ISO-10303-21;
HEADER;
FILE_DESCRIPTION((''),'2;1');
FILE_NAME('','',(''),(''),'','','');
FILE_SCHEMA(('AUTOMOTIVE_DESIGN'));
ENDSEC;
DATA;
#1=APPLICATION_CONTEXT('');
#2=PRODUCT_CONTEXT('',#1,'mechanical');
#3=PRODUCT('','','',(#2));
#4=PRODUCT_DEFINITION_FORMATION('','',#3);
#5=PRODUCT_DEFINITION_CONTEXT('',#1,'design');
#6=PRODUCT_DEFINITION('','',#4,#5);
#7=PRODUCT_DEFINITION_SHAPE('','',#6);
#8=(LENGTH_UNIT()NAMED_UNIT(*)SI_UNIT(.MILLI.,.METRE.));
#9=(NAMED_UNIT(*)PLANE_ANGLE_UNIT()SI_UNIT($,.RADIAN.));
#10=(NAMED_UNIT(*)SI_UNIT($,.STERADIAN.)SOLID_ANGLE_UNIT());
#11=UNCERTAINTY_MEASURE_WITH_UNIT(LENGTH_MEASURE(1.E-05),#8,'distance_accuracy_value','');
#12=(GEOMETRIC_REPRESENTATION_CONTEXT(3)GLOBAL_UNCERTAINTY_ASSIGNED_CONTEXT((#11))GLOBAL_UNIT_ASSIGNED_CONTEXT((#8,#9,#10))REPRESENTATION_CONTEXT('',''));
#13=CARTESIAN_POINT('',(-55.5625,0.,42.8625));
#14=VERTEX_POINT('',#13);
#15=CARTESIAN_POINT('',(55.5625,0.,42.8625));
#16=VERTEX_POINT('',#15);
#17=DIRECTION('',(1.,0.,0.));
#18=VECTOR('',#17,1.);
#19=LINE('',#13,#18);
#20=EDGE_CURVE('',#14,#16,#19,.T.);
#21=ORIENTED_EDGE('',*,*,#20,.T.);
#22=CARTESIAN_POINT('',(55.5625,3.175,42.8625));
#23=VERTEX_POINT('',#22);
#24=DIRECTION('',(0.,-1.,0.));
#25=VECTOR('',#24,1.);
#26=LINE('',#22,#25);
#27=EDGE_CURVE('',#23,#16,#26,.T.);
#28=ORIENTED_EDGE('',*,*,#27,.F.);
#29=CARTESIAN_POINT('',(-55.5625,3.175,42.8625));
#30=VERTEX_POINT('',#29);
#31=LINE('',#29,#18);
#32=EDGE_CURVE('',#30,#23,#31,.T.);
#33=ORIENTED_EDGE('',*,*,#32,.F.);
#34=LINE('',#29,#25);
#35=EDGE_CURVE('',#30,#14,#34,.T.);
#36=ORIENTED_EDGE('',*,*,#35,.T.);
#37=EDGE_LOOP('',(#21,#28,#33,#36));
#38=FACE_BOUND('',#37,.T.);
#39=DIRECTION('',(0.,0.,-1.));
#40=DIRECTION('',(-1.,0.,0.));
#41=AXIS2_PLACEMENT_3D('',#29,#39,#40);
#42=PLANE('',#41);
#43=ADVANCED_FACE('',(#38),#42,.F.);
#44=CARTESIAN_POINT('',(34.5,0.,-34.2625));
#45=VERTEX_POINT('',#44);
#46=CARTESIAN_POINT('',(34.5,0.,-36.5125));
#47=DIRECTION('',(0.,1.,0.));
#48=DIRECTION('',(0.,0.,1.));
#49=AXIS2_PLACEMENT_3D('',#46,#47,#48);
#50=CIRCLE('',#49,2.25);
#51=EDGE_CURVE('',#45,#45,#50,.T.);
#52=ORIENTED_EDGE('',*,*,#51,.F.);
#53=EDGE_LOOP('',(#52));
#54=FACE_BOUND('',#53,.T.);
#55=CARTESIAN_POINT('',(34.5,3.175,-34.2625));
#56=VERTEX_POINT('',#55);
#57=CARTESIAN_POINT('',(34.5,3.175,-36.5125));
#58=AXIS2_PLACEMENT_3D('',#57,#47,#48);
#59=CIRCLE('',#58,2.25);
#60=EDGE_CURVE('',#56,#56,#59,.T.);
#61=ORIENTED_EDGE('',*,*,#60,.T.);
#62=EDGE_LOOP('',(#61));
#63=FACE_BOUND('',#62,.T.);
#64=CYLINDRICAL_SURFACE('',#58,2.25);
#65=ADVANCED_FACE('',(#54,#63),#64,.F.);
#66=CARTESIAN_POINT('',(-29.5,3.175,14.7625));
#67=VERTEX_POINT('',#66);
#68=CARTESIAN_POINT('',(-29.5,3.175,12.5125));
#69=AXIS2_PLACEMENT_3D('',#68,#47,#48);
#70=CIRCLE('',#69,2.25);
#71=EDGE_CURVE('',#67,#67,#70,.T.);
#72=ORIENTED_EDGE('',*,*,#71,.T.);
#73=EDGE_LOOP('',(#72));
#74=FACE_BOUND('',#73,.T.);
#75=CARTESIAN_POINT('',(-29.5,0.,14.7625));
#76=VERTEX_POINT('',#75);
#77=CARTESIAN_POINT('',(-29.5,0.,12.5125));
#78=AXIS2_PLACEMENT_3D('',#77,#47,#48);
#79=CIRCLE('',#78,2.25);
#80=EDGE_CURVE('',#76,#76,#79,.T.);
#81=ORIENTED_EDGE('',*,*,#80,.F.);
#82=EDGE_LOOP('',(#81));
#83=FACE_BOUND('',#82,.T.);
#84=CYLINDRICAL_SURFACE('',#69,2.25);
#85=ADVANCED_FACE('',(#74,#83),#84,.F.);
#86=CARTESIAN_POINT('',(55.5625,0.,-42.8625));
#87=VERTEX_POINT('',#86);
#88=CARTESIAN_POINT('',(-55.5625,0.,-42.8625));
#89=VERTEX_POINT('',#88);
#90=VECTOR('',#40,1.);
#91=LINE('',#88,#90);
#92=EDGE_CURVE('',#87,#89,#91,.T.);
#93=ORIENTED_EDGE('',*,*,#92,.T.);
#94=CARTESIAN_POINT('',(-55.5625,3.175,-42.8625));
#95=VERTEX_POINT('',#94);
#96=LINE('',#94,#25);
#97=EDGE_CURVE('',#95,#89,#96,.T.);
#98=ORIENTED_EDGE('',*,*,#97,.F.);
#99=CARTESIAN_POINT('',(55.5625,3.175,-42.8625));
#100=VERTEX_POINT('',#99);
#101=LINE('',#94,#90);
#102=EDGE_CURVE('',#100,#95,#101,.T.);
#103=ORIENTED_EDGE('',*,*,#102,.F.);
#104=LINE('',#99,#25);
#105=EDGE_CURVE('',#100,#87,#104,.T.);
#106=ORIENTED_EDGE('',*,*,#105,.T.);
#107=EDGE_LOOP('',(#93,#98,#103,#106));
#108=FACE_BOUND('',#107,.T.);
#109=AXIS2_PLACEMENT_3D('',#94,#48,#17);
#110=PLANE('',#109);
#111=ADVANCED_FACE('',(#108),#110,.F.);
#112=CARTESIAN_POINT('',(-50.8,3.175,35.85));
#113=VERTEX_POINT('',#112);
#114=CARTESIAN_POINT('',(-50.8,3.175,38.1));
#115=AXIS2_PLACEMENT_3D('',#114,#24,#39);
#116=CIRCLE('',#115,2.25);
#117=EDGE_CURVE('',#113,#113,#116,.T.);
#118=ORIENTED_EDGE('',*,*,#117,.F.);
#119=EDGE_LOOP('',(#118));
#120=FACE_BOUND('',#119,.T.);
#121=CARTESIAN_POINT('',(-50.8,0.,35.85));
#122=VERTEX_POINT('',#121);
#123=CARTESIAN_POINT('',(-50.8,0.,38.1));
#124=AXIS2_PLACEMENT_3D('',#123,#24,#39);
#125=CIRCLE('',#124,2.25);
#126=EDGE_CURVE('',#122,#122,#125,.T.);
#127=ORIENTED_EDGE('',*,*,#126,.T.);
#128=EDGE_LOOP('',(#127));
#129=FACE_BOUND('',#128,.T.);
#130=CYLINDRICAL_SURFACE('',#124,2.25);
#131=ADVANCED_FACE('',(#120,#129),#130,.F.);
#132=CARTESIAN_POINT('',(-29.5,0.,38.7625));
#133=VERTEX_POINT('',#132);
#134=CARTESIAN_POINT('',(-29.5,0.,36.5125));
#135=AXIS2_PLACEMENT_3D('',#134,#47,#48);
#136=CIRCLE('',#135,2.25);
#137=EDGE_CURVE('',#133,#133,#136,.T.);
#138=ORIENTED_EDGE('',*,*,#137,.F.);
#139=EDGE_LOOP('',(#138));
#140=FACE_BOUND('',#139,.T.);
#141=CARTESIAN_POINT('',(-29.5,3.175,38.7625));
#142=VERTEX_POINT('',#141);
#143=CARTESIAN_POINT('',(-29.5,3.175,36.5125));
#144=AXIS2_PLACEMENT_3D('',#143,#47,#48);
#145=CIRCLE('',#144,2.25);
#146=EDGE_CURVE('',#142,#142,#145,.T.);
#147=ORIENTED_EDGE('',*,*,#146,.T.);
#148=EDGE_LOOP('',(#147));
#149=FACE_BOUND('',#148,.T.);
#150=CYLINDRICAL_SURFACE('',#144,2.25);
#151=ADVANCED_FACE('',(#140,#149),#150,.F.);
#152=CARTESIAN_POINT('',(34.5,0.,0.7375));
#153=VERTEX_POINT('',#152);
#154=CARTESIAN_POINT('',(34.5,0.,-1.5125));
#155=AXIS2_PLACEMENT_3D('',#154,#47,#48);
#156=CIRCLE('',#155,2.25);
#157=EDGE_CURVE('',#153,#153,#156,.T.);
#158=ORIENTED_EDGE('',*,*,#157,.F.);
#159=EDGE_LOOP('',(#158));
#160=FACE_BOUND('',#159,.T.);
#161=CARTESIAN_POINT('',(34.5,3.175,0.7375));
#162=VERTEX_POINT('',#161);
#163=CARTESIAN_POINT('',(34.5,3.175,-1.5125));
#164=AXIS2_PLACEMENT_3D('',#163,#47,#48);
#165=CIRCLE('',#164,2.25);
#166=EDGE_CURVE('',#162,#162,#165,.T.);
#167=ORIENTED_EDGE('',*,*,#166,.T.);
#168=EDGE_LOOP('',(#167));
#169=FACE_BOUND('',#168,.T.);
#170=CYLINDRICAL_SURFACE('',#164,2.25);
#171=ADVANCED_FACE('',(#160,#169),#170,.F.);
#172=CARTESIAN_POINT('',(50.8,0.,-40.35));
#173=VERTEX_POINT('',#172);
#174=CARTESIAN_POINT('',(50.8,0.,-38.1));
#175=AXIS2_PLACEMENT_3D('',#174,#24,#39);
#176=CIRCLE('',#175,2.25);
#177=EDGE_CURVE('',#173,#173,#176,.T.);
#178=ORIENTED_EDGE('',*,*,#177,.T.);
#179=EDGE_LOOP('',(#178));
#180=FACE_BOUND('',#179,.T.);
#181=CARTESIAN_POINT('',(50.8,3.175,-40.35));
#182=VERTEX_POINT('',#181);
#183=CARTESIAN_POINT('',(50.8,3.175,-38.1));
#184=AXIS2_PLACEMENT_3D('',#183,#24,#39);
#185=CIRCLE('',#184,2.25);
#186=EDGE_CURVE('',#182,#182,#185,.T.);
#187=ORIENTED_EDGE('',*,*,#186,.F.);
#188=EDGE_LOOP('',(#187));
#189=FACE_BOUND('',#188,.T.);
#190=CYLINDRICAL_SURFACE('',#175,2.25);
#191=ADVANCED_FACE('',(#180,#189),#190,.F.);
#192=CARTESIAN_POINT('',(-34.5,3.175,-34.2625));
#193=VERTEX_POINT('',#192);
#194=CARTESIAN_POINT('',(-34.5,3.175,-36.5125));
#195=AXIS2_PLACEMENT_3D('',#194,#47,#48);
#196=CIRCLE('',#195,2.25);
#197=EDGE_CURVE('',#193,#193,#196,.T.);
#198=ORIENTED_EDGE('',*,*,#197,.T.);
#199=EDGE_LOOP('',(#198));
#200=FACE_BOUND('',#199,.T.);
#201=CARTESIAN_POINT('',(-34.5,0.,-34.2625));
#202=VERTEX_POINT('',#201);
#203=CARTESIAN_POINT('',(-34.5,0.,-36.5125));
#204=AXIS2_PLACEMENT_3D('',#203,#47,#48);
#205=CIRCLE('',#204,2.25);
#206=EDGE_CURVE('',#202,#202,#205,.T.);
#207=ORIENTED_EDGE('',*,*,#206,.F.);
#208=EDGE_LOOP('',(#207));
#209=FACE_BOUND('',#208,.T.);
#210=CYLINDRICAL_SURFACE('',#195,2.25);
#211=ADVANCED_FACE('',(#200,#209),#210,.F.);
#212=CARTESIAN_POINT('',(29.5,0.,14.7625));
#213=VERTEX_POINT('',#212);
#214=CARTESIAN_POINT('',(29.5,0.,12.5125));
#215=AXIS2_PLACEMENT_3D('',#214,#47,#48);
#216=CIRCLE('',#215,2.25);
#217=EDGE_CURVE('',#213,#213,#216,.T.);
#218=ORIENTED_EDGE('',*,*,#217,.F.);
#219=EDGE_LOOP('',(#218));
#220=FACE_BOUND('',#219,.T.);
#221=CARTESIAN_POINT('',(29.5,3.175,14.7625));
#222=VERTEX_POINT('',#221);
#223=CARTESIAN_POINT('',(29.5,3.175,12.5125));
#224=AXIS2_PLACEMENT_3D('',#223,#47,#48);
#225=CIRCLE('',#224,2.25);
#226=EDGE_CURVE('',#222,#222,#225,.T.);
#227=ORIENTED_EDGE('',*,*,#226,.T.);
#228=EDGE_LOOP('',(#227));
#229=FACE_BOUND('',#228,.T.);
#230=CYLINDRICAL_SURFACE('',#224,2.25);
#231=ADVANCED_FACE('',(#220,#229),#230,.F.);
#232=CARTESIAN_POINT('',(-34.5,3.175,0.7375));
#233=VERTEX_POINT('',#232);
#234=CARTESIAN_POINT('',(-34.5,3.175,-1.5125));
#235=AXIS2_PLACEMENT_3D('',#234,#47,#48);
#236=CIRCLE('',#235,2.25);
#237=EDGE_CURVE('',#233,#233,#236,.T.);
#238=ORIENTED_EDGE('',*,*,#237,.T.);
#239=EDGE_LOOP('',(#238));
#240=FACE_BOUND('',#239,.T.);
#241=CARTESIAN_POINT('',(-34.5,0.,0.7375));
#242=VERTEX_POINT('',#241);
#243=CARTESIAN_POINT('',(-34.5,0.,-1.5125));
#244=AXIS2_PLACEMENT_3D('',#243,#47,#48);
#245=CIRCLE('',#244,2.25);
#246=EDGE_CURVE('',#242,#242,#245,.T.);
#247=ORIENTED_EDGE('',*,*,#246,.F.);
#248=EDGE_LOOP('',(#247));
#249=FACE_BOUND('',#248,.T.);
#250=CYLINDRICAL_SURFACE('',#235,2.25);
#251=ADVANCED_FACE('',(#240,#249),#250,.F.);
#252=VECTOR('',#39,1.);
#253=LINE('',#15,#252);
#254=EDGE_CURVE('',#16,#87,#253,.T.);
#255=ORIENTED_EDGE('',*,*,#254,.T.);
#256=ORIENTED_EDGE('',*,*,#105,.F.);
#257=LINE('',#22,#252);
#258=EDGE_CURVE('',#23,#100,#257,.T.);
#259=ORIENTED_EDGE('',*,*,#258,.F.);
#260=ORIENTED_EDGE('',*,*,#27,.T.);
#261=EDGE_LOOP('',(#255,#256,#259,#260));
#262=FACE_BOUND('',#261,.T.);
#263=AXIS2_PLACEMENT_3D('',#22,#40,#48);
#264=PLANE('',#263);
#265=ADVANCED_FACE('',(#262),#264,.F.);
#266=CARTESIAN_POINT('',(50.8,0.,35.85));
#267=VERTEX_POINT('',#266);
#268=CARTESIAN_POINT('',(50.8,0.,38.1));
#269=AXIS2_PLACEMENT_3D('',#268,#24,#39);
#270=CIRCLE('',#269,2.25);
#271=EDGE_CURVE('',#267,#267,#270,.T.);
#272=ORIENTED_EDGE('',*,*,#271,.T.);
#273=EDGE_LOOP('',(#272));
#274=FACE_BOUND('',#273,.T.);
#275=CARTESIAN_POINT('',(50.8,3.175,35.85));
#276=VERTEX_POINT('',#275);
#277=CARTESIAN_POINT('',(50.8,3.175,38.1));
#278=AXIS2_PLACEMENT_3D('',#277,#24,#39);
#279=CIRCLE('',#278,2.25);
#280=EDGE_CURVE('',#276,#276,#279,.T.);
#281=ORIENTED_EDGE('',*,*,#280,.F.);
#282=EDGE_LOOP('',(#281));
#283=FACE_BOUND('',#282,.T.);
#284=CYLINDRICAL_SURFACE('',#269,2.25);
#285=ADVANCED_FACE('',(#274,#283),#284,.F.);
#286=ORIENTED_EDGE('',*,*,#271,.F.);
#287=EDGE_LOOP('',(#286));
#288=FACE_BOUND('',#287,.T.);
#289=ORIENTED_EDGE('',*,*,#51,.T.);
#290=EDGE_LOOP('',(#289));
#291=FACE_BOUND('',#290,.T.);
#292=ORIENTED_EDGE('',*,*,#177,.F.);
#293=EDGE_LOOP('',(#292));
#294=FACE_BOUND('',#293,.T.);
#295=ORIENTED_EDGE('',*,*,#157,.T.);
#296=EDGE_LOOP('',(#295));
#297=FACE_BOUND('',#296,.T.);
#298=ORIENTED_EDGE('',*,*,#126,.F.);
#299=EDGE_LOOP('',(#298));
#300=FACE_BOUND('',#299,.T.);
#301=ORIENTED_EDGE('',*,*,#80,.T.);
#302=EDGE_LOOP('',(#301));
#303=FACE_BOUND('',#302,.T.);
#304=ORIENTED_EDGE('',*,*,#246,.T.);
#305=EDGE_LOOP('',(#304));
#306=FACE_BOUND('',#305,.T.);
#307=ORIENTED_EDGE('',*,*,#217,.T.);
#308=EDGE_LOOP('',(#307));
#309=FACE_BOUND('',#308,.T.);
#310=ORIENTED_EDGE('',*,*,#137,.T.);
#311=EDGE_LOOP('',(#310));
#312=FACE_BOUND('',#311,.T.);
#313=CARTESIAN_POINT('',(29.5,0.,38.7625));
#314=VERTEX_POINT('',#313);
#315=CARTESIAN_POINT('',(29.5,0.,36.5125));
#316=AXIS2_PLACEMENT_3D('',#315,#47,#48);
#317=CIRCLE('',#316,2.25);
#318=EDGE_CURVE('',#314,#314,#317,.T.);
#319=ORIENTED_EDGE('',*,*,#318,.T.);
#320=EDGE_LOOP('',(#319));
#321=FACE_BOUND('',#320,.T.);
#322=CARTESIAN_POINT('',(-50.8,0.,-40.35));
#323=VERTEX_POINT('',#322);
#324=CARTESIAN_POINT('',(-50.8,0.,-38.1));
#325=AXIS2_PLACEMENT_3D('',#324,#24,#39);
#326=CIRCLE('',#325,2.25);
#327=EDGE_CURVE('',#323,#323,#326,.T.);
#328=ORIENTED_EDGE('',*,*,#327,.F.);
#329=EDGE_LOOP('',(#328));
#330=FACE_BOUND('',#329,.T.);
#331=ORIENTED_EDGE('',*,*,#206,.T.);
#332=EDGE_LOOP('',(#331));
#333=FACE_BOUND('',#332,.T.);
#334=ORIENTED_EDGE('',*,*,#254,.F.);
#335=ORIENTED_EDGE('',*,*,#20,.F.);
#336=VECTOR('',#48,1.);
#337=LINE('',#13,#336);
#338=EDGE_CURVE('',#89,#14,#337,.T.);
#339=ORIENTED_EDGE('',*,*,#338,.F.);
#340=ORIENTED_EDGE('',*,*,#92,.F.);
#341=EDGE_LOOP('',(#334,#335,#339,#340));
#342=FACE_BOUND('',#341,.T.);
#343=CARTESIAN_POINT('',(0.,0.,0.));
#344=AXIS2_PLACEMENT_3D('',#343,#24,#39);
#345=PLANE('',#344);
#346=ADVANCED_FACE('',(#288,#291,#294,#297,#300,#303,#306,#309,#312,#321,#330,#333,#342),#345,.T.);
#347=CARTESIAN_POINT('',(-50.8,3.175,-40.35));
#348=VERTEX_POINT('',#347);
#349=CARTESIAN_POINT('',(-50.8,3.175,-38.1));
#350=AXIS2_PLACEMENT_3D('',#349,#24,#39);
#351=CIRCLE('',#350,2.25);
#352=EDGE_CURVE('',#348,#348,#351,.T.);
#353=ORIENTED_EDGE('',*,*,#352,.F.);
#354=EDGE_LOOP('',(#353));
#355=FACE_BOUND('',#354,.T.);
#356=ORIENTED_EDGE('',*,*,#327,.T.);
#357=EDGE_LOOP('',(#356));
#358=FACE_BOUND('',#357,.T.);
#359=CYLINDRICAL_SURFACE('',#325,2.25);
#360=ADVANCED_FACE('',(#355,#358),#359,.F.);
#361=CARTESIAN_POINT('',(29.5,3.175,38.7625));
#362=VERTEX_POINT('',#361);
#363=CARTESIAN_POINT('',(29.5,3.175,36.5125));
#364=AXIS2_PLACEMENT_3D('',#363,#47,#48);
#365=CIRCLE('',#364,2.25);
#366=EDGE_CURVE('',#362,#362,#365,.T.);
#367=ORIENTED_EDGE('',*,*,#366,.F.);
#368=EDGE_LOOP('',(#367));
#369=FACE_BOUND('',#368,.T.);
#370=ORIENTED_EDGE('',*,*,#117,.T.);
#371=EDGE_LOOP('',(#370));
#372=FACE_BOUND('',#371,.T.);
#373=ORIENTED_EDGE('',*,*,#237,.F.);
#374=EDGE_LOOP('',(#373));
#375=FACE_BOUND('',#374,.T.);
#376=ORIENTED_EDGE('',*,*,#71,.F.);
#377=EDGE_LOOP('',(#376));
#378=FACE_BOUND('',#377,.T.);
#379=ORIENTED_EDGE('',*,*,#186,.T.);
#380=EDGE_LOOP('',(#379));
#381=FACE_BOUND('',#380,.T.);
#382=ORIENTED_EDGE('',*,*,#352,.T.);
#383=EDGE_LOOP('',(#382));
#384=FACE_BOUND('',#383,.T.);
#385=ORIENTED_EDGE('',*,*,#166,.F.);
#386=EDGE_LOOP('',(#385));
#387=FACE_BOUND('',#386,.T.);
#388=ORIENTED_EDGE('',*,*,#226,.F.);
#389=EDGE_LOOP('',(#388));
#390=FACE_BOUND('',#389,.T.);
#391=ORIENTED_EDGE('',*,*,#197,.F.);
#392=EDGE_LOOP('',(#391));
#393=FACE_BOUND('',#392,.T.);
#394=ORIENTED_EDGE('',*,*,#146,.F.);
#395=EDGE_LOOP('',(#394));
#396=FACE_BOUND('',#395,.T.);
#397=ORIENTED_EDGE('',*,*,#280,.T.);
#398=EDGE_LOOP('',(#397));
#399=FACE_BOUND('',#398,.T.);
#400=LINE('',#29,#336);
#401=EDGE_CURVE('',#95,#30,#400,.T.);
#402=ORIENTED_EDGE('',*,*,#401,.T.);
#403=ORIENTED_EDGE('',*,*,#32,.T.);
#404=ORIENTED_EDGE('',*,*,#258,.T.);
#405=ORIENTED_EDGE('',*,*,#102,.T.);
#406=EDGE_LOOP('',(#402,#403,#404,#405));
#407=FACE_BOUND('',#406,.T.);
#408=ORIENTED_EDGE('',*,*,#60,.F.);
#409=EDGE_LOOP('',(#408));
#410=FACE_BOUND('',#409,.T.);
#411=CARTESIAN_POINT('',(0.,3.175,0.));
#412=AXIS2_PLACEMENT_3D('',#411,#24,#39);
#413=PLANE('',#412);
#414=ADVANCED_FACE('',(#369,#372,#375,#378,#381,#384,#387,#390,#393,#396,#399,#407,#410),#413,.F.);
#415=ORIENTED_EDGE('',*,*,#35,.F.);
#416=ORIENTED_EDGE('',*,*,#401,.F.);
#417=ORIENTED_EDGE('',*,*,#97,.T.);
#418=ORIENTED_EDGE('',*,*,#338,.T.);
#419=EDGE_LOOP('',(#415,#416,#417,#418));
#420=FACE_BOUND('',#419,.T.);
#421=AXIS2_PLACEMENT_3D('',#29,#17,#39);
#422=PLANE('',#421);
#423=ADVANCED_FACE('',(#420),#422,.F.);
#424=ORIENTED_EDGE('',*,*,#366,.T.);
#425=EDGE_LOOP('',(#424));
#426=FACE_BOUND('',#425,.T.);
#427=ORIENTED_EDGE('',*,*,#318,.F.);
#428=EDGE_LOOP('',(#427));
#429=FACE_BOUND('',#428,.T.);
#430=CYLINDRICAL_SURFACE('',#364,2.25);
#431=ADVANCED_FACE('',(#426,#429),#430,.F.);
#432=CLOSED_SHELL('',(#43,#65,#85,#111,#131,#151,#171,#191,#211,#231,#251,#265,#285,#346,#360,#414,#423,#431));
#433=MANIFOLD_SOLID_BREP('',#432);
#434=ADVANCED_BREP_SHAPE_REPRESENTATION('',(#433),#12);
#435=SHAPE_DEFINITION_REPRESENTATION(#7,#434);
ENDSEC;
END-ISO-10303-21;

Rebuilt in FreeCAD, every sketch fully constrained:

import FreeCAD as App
import Part
import Sketcher
Q = App.Units.Quantity


def add_polygon(sketch, points):
    """Adds a closed chain of lines whose ends are joined by coincident constraints."""
    first, n = sketch.GeometryCount, len(points)
    for a, b in zip(points, points[1:] + points[:1]):
        sketch.addGeometry(Part.LineSegment(App.Vector(*a, 0), App.Vector(*b, 0)), False)
    for i in range(n):
        sketch.addConstraint(Sketcher.Constraint("Coincident", first + i, 2, first + (i + 1) % n, 1))

doc = App.newDocument("Part")
body = doc.addObject("PartDesign::Body", "Body")

# Sketch on XZ plane
sketch1 = doc.addObject("Sketcher::SketchObject", "Sketch")
body.addObject(sketch1)
sketch1.AttachmentSupport = (doc.XZ_Plane, [""])
sketch1.MapMode = "FlatFace"
add_polygon(sketch1, [(-55.5625, -42.8625), (-55.5625, 42.8625), (55.5625, 42.8625), (55.5625, -42.8625)])  # lines 0-3
sketch1.addConstraint(Sketcher.Constraint("Vertical", 0))
sketch1.addConstraint(Sketcher.Constraint("Horizontal", 1))
sketch1.addConstraint(Sketcher.Constraint("Vertical", 2))
sketch1.addConstraint(Sketcher.Constraint("Horizontal", 3))
sketch1.addConstraint(Sketcher.Constraint("Symmetric", 0, 2, 2, 2, -1, 1))
sketch1.addConstraint(Sketcher.Constraint("DistanceX", 1, 1, 1, 2, Q("4.375 in")))
sketch1.addConstraint(Sketcher.Constraint("DistanceY", 0, 1, 0, 2, Q("3.375 in")))
pad1 = doc.addObject("PartDesign::Pad", "Pad")
body.addObject(pad1)
pad1.Profile = sketch1
pad1.Length = Q("0.125 in")
pad1.Reversed = True

# Sketch on XZ plane
sketch2 = doc.addObject("Sketcher::SketchObject", "Sketch001")
body.addObject(sketch2)
sketch2.AttachmentSupport = (doc.XZ_Plane, [""])
sketch2.MapMode = "FlatFace"
sketch2.addGeometry(Part.Circle(App.Vector(-50.8, 38.1, 0), App.Vector(0, 0, 1), 2.25), False)
sketch2.addGeometry(Part.Circle(App.Vector(50.8, 38.1, 0), App.Vector(0, 0, 1), 2.25), False)
sketch2.addGeometry(Part.Circle(App.Vector(-50.8, -38.1, 0), App.Vector(0, 0, 1), 2.25), False)
sketch2.addGeometry(Part.Circle(App.Vector(50.8, -38.1, 0), App.Vector(0, 0, 1), 2.25), False)
sketch2.addConstraint(Sketcher.Constraint("Equal", 0, 1))
sketch2.addConstraint(Sketcher.Constraint("Equal", 1, 2))
sketch2.addConstraint(Sketcher.Constraint("Equal", 2, 3))
sketch2.addConstraint(Sketcher.Constraint("Symmetric", 1, 3, 2, 3, -1, 1))
sketch2.addConstraint(Sketcher.Constraint("Symmetric", 0, 3, 3, 3, -1, 1))
sketch2.addConstraint(Sketcher.Constraint("Symmetric", 0, 3, 1, 3, -2))
sketch2.addConstraint(Sketcher.Constraint("DistanceX", 0, 3, -1, 1, Q("2 in")))
sketch2.addConstraint(Sketcher.Constraint("DistanceY", 2, 3, 0, 3, Q("3 in")))
sketch2.addConstraint(Sketcher.Constraint("Diameter", 0, 4.5))
doc.recompute()
hole = doc.addObject("PartDesign::Hole", "Hole")
body.addObject(hole)
hole.Profile = sketch2
hole.ThreadType = "None"
hole.Diameter = 4.5
hole.DepthType = "ThroughAll"

# Sketch on XZ plane
sketch3 = doc.addObject("Sketcher::SketchObject", "Sketch002")
body.addObject(sketch3)
sketch3.AttachmentSupport = (doc.XZ_Plane, [""])
sketch3.MapMode = "FlatFace"
sketch3.AttachmentOffset = App.Placement(App.Vector(0, 0, -0.125 * 25.4), App.Rotation())
sketch3.addGeometry(Part.Circle(App.Vector(-29.5, 36.5125, 0), App.Vector(0, 0, 1), 2.25), False)
sketch3.addGeometry(Part.Circle(App.Vector(-29.5, 12.5125, 0), App.Vector(0, 0, 1), 2.25), False)
sketch3.addGeometry(Part.Circle(App.Vector(29.5, 12.5125, 0), App.Vector(0, 0, 1), 2.25), False)
sketch3.addGeometry(Part.Circle(App.Vector(29.5, 36.5125, 0), App.Vector(0, 0, 1), 2.25), False)
sketch3.addGeometry(Part.Circle(App.Vector(34.5, -1.5125, 0), App.Vector(0, 0, 1), 2.25), False)
sketch3.addGeometry(Part.Circle(App.Vector(34.5, -36.5125, 0), App.Vector(0, 0, 1), 2.25), False)
sketch3.addGeometry(Part.Circle(App.Vector(-34.5, -36.5125, 0), App.Vector(0, 0, 1), 2.25), False)
sketch3.addGeometry(Part.Circle(App.Vector(-34.5, -1.5125, 0), App.Vector(0, 0, 1), 2.25), False)
sketch3.addConstraint(Sketcher.Constraint("Equal", 0, 1))
sketch3.addConstraint(Sketcher.Constraint("Equal", 1, 2))
sketch3.addConstraint(Sketcher.Constraint("Equal", 2, 3))
sketch3.addConstraint(Sketcher.Constraint("Equal", 3, 4))
sketch3.addConstraint(Sketcher.Constraint("Equal", 4, 5))
sketch3.addConstraint(Sketcher.Constraint("Equal", 5, 6))
sketch3.addConstraint(Sketcher.Constraint("Equal", 6, 7))
sketch3.addConstraint(Sketcher.Constraint("Symmetric", 1, 3, 2, 3, -2))
sketch3.addConstraint(Sketcher.Constraint("Symmetric", 0, 3, 3, 3, -2))
sketch3.addConstraint(Sketcher.Constraint("Symmetric", 5, 3, 6, 3, -2))
sketch3.addConstraint(Sketcher.Constraint("Symmetric", 4, 3, 7, 3, -2))
sketch3.addConstraint(Sketcher.Constraint("Vertical", 0, 3, 1, 3))
sketch3.addConstraint(Sketcher.Constraint("Vertical", 4, 3, 5, 3))
sketch3.addConstraint(Sketcher.Constraint("Diameter", 0, 4.5))
sketch3.addConstraint(Sketcher.Constraint("DistanceY", -1, 1, 0, 3, Q("1.4375 in")))
sketch3.addConstraint(Sketcher.Constraint("DistanceY", 5, 3, -1, 1, Q("1.4375 in")))
sketch3.addConstraint(Sketcher.Constraint("DistanceX", 0, 3, -1, 1, 29.5))
sketch3.addConstraint(Sketcher.Constraint("DistanceY", -1, 1, 1, 3, 12.5125))
sketch3.addConstraint(Sketcher.Constraint("DistanceX", -1, 1, 4, 3, 34.5))
sketch3.addConstraint(Sketcher.Constraint("DistanceY", 4, 3, -1, 1, 1.5125))
doc.recompute()
hole2 = doc.addObject("PartDesign::Hole", "Hole001")
body.addObject(hole2)
hole2.Profile = sketch3
hole2.ThreadType = "None"
hole2.Diameter = 4.5
hole2.DepthType = "ThroughAll"
hole2.Reversed = True

doc.recompute()
